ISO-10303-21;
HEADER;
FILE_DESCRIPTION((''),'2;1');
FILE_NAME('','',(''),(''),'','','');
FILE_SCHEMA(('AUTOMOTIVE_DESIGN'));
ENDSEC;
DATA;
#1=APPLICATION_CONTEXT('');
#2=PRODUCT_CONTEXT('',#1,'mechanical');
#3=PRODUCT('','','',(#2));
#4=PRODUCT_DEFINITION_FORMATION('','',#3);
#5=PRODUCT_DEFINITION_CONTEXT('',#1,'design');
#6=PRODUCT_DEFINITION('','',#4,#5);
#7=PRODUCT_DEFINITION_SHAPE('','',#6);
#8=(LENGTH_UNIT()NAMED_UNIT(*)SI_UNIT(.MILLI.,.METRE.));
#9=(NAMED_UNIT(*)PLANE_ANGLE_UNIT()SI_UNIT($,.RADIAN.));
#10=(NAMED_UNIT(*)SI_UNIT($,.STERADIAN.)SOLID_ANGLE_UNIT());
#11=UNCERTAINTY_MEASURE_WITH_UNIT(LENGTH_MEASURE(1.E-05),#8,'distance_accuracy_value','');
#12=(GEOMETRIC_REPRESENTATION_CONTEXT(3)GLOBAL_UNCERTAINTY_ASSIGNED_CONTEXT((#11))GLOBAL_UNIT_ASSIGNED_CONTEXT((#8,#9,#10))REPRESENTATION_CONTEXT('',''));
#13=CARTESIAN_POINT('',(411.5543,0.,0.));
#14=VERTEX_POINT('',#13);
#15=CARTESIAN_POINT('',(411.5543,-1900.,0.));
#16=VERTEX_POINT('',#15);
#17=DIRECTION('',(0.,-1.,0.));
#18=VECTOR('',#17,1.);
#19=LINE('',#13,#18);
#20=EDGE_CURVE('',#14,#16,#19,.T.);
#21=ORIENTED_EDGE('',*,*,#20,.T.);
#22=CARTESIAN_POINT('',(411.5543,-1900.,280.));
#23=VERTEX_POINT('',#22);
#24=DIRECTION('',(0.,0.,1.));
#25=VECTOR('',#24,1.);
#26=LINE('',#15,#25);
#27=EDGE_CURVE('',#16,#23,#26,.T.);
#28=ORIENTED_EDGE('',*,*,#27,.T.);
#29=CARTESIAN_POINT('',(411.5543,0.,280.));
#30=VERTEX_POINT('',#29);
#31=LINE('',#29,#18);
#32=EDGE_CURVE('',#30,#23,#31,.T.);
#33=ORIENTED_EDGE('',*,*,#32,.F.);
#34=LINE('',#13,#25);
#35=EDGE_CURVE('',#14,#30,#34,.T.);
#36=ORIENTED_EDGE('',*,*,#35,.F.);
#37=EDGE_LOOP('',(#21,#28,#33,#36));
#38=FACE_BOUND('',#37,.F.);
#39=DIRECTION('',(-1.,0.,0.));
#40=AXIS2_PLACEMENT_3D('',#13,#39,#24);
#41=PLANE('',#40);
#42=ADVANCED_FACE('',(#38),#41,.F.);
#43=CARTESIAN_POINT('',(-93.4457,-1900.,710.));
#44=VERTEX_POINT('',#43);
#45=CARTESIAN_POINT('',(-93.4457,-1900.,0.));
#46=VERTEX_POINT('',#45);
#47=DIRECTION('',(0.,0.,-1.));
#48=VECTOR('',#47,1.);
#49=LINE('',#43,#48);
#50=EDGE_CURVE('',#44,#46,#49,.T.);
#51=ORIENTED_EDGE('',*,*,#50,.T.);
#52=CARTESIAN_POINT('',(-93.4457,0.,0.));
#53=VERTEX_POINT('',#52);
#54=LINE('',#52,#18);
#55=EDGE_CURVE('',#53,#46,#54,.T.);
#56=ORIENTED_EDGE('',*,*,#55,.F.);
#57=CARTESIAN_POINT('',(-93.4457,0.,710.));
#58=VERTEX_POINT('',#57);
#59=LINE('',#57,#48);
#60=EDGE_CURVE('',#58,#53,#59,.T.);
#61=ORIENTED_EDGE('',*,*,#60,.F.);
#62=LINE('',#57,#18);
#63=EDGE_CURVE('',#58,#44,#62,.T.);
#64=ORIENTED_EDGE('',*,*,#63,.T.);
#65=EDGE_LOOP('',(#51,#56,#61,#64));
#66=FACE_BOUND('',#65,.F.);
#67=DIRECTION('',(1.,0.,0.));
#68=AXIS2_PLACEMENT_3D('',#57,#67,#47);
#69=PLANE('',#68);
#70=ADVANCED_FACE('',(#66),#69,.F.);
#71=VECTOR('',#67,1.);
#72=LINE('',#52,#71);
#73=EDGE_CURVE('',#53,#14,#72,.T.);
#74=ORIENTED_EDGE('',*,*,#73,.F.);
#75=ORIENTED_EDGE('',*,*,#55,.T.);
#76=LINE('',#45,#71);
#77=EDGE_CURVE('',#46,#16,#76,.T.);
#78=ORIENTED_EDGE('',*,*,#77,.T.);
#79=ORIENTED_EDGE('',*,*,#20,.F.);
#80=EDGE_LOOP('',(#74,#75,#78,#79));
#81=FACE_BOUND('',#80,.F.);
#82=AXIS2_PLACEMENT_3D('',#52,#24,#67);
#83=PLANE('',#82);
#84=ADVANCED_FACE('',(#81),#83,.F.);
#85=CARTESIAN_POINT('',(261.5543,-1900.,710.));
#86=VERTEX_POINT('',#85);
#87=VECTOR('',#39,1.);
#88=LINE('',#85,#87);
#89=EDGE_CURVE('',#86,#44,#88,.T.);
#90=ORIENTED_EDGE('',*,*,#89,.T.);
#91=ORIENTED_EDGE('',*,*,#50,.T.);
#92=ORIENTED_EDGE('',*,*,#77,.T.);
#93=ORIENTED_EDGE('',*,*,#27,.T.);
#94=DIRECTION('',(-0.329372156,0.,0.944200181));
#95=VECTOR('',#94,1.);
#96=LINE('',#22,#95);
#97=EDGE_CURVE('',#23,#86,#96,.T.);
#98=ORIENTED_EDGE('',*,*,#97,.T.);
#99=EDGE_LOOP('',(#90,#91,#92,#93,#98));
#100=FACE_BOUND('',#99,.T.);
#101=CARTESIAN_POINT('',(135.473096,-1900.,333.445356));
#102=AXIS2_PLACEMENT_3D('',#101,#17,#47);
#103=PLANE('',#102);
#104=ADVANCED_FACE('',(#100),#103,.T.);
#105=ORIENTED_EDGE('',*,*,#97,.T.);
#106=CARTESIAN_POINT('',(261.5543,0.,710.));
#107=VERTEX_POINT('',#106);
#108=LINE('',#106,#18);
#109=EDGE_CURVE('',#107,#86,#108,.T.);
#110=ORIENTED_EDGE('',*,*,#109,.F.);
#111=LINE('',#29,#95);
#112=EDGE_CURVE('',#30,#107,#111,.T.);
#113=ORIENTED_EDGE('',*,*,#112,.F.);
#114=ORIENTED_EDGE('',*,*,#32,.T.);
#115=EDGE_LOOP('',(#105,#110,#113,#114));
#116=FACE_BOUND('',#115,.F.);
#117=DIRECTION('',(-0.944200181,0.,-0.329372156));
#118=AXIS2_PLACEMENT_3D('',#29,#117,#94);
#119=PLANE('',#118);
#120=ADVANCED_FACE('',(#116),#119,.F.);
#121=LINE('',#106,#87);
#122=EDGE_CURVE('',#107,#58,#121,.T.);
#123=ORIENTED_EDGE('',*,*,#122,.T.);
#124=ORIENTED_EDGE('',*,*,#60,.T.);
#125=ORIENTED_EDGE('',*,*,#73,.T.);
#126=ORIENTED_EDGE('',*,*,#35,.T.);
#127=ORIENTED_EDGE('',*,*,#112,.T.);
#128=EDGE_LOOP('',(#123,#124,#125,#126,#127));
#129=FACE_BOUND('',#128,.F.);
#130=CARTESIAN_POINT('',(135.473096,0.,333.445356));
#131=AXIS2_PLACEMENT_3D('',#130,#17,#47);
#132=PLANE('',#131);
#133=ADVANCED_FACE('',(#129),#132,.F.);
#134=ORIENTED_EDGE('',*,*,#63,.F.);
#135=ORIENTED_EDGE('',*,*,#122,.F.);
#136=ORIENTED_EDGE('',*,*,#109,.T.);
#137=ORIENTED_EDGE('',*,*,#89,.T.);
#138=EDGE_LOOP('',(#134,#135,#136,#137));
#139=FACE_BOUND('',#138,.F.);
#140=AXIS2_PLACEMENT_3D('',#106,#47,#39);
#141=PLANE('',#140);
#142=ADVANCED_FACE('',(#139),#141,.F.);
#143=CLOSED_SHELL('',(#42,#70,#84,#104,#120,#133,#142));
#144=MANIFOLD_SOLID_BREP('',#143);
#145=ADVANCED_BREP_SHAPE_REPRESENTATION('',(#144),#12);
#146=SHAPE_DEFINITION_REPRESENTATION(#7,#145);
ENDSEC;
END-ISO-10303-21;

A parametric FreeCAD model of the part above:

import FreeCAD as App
import Part
import Sketcher

V = App.Vector
Q = App.Units.Quantity

doc = App.newDocument("Part")
body = doc.addObject("PartDesign::Body", "Body")

# Sketch on XZ plane
sketch1 = doc.addObject("Sketcher::SketchObject", "Sketch")
body.addObject(sketch1)
sketch1.AttachmentSupport = (doc.XZ_Plane, [""])
sketch1.MapMode = "FlatFace"
sketch1.addGeometry(Part.LineSegment(V(-93, 710, 0), V(-93, 0, 0)), False)
sketch1.addGeometry(Part.LineSegment(V(-93, 0, 0), V(412, 0, 0)), False)
sketch1.addGeometry(Part.LineSegment(V(412, 0, 0), V(412, 280, 0)), False)
sketch1.addGeometry(Part.LineSegment(V(412, 280, 0), V(262, 710, 0)), False)
sketch1.addGeometry(Part.LineSegment(V(262, 710, 0), V(-93, 710, 0)), False)
sketch1.addConstraint(Sketcher.Constraint("Coincident", 0, 2, 1, 1))
sketch1.addConstraint(Sketcher.Constraint("Coincident", 1, 2, 2, 1))
sketch1.addConstraint(Sketcher.Constraint("Coincident", 2, 2, 3, 1))
sketch1.addConstraint(Sketcher.Constraint("Coincident", 3, 2, 4, 1))
sketch1.addConstraint(Sketcher.Constraint("Coincident", 4, 2, 0, 1))
sketch1.addConstraint(Sketcher.Constraint("Vertical", 0))
sketch1.addConstraint(Sketcher.Constraint("Horizontal", 1))
sketch1.addConstraint(Sketcher.Constraint("Vertical", 2))
sketch1.addConstraint(Sketcher.Constraint("Horizontal", 4))
sketch1.addConstraint(Sketcher.Constraint("PointOnObject", 0, 2, -1))
sketch1.addConstraint(Sketcher.Constraint("DistanceX", 1, 1, 1, 2, Q("505 mm")))
sketch1.addConstraint(Sketcher.Constraint("DistanceX", 4, 2, 4, 1, Q("355 mm")))
sketch1.addConstraint(Sketcher.Constraint("DistanceY", 0, 2, 0, 1, Q("710 mm")))
sketch1.addConstraint(Sketcher.Constraint("DistanceY", 2, 1, 2, 2, Q("280 mm")))
sketch1.addConstraint(Sketcher.Constraint("DistanceX", 0, 2, -1, 1, Q("93.4457 mm")))
pad1 = doc.addObject("PartDesign::Pad", "Pad")
body.addObject(pad1)
pad1.Profile = sketch1
pad1.Length = 1900

doc.recompute()
